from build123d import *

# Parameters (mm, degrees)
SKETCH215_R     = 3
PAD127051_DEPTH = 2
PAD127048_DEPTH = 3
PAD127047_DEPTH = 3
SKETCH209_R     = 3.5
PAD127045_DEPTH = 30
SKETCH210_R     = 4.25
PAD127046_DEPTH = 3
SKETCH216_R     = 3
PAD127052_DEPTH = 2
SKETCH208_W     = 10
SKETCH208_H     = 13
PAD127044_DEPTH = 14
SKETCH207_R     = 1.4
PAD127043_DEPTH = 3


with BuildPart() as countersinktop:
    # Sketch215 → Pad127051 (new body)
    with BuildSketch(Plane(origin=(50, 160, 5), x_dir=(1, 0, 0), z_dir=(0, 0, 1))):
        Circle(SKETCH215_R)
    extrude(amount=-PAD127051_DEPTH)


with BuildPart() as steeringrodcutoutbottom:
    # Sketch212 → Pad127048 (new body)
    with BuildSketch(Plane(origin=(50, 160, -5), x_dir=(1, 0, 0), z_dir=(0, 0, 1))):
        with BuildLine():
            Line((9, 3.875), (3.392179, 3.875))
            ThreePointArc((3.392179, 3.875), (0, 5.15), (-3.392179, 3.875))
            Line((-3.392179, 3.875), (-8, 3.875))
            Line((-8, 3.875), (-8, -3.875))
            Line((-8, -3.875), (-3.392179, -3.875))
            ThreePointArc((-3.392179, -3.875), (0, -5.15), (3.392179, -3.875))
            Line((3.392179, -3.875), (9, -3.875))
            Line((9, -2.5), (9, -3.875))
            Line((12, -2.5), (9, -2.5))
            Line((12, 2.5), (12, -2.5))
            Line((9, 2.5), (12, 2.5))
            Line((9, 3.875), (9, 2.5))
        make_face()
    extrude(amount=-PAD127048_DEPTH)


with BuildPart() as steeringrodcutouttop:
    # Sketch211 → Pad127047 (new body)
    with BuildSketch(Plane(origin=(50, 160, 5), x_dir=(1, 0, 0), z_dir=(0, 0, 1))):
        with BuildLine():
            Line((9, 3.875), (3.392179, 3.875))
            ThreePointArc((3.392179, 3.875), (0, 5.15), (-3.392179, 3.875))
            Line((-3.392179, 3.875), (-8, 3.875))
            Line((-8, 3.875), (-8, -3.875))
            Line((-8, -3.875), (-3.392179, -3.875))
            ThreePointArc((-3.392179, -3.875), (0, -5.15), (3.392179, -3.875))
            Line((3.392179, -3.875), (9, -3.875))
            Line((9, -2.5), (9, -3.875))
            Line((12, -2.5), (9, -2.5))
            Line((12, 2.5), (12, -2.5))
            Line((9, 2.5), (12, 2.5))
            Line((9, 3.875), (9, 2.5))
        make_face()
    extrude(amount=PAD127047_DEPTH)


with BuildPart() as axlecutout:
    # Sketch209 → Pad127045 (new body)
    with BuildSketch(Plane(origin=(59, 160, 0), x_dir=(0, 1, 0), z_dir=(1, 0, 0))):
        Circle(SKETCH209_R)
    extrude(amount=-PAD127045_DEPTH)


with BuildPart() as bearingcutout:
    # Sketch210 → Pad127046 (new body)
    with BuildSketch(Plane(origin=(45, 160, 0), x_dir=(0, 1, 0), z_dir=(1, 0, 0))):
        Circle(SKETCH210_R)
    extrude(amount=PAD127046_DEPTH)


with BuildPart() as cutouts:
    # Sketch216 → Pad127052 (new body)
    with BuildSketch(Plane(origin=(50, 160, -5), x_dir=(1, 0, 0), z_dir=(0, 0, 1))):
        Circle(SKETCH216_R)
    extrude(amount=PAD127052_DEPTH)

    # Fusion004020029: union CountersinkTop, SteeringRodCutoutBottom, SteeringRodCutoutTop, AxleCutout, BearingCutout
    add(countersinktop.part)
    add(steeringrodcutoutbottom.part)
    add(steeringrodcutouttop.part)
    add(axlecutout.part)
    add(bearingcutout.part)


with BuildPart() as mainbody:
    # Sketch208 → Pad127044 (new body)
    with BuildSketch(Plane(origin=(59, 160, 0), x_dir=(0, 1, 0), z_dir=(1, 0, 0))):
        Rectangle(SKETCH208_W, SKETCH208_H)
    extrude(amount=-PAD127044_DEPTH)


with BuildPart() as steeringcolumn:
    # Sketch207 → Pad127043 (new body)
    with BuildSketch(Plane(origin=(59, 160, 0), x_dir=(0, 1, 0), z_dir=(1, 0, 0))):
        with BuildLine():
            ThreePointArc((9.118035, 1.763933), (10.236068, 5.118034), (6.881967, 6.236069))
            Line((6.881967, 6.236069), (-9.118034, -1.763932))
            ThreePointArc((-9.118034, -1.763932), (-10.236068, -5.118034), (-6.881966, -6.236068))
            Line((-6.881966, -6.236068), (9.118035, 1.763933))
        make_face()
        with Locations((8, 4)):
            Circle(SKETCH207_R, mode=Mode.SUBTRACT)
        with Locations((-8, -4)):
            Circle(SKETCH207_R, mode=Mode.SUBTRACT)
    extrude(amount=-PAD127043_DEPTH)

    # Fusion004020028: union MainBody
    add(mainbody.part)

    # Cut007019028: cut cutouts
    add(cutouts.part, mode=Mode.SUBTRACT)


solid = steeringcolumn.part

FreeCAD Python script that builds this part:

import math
import FreeCAD as App
import Part
import Sketcher
Q = App.Units.Quantity


def add_polygon(sketch, points):
    """Adds a closed chain of lines whose ends are joined by coincident constraints."""
    first, n = sketch.GeometryCount, len(points)
    for a, b in zip(points, points[1:] + points[:1]):
        sketch.addGeometry(Part.LineSegment(App.Vector(*a, 0), App.Vector(*b, 0)), False)
    for i in range(n):
        sketch.addConstraint(Sketcher.Constraint("Coincident", first + i, 2, first + (i + 1) % n, 1))

doc = App.newDocument("Part")
body = doc.addObject("PartDesign::Body", "Body")

# Sketch on XY plane
sketch1 = body.newObject("Sketcher::SketchObject", "Sketch")
sketch1.AttachmentSupport = (doc.getObject("XY_Plane"), [""])
sketch1.MapMode = "FlatFace"
sketch1.AttachmentOffset = App.Placement(App.Vector(0, 0, 5), App.Rotation())
sketch1.addGeometry(Part.Circle(App.Vector(50, 160, 0), App.Vector(0, 0, 1), 3), False)
sketch1.addConstraint(Sketcher.Constraint("Diameter", 0, Q("6 mm")))
sketch1.addConstraint(Sketcher.Constraint("DistanceX", -1, 1, 0, 3, Q("50 mm")))
sketch1.addConstraint(Sketcher.Constraint("DistanceY", -1, 1, 0, 3, Q("160 mm")))
pad1 = body.newObject("PartDesign::Pad", "Pad")
pad1.Profile = sketch1
pad1.Length = 2
pad1.Reversed = True
body2 = doc.addObject("PartDesign::Body", "Body001")

# Sketch on XY plane
sketch2 = body2.newObject("Sketcher::SketchObject", "Sketch001")
sketch2.AttachmentSupport = (doc.getObject("XY_Plane001"), [""])
sketch2.MapMode = "FlatFace"
sketch2.AttachmentOffset = App.Placement(App.Vector(0, 0, -5), App.Rotation())
sketch2.addGeometry(Part.LineSegment(App.Vector(59, 163.9, 0), App.Vector(53.4, 163.9, 0)), False)
sketch2.addGeometry(Part.ArcOfCircle(Part.Circle(App.Vector(50, 160, 0), App.Vector(0, 0, 1), 5.2), math.radians(49), math.radians(131)), False)
sketch2.addGeometry(Part.LineSegment(App.Vector(46.6, 163.9, 0), App.Vector(42, 163.9, 0)), False)
sketch2.addGeometry(Part.LineSegment(App.Vector(42, 163.9, 0), App.Vector(42, 156.1, 0)), False)
sketch2.addGeometry(Part.LineSegment(App.Vector(42, 156.1, 0), App.Vector(46.6, 156.1, 0)), False)
sketch2.addGeometry(Part.ArcOfCircle(Part.Circle(App.Vector(50, 160, 0), App.Vector(0, 0, 1), 5.2), math.radians(-131), math.radians(-49)), False)
sketch2.addGeometry(Part.LineSegment(App.Vector(53.4, 156.1, 0), App.Vector(59, 156.1, 0)), False)
sketch2.addGeometry(Part.LineSegment(App.Vector(59, 156.1, 0), App.Vector(59, 157.5, 0)), False)
sketch2.addGeometry(Part.LineSegment(App.Vector(59, 157.5, 0), App.Vector(62, 157.5, 0)), False)
sketch2.addGeometry(Part.LineSegment(App.Vector(62, 157.5, 0), App.Vector(62, 162.5, 0)), False)
sketch2.addGeometry(Part.LineSegment(App.Vector(62, 162.5, 0), App.Vector(59, 162.5, 0)), False)
sketch2.addGeometry(Part.LineSegment(App.Vector(59, 162.5, 0), App.Vector(59, 163.9, 0)), False)
sketch2.addConstraint(Sketcher.Constraint("Coincident", 0, 2, 1, 1))
sketch2.addConstraint(Sketcher.Constraint("Coincident", 1, 2, 2, 1))
sketch2.addConstraint(Sketcher.Constraint("Coincident", 2, 2, 3, 1))
sketch2.addConstraint(Sketcher.Constraint("Coincident", 3, 2, 4, 1))
sketch2.addConstraint(Sketcher.Constraint("Coincident", 4, 2, 5, 1))
sketch2.addConstraint(Sketcher.Constraint("Coincident", 5, 2, 6, 1))
sketch2.addConstraint(Sketcher.Constraint("Coincident", 6, 2, 7, 1))
sketch2.addConstraint(Sketcher.Constraint("Coincident", 7, 2, 8, 1))
sketch2.addConstraint(Sketcher.Constraint("Coincident", 8, 2, 9, 1))
sketch2.addConstraint(Sketcher.Constraint("Coincident", 9, 2, 10, 1))
sketch2.addConstraint(Sketcher.Constraint("Coincident", 10, 2, 11, 1))
sketch2.addConstraint(Sketcher.Constraint("Coincident", 11, 2, 0, 1))
sketch2.addConstraint(Sketcher.Constraint("Horizontal", 0))
sketch2.addConstraint(Sketcher.Constraint("Horizontal", 2))
sketch2.addConstraint(Sketcher.Constraint("Vertical", 3))
sketch2.addConstraint(Sketcher.Constraint("Horizontal", 4))
sketch2.addConstraint(Sketcher.Constraint("Horizontal", 6))
sketch2.addConstraint(Sketcher.Constraint("Vertical", 7))
sketch2.addConstraint(Sketcher.Constraint("Horizontal", 8))
sketch2.addConstraint(Sketcher.Constraint("Vertical", 9))
sketch2.addConstraint(Sketcher.Constraint("Horizontal", 10))
sketch2.addConstraint(Sketcher.Constraint("Vertical", 11))
sketch2.addConstraint(Sketcher.Constraint("Coincident", 5, 3, 1, 3))
sketch2.addConstraint(Sketcher.Constraint("Equal", 1, 5))
sketch2.addConstraint(Sketcher.Constraint("Horizontal", 0, 2, 1, 2))
sketch2.addConstraint(Sketcher.Constraint("Horizontal", 4, 2, 5, 2))
sketch2.addConstraint(Sketcher.Constraint("Vertical", 1, 2, 4, 2))
sketch2.addConstraint(Sketcher.Constraint("Vertical", 7, 2, 10, 2))
sketch2.addConstraint(Sketcher.Constraint("Equal", 7, 11))
sketch2.addConstraint(Sketcher.Constraint("DistanceX", 8, 1, 8, 2, Q("3 mm")))
sketch2.addConstraint(Sketcher.Constraint("DistanceY", 9, 1, 9, 2, Q("5 mm")))
sketch2.addConstraint(Sketcher.Constraint("Radius", 1, Q("5.150001 mm")))
sketch2.addConstraint(Sketcher.Constraint("DistanceX", -1, 1, 1, 3, Q("50 mm")))
sketch2.addConstraint(Sketcher.Constraint("DistanceY", -1, 1, 1, 3, Q("159.999999 mm")))
sketch2.addConstraint(Sketcher.Constraint("DistanceX", -1, 1, 2, 2, Q("42 mm")))
sketch2.addConstraint(Sketcher.Constraint("DistanceX", -1, 1, 6, 2, Q("59 mm")))
sketch2.addConstraint(Sketcher.Constraint("DistanceY", 3, 2, 3, 1, Q("7.75 mm")))
pad2 = body2.newObject("PartDesign::Pad", "Pad001")
pad2.Profile = sketch2
pad2.Length = 3
pad2.Reversed = True
body3 = doc.addObject("PartDesign::Body", "Body002")

# Sketch on XY plane
sketch3 = body3.newObject("Sketcher::SketchObject", "Sketch002")
sketch3.AttachmentSupport = (doc.getObject("XY_Plane002"), [""])
sketch3.MapMode = "FlatFace"
sketch3.AttachmentOffset = App.Placement(App.Vector(0, 0, 5), App.Rotation())
sketch3.addGeometry(Part.LineSegment(App.Vector(59, 163.9, 0), App.Vector(53.4, 163.9, 0)), False)
sketch3.addGeometry(Part.ArcOfCircle(Part.Circle(App.Vector(50, 160, 0), App.Vector(0, 0, 1), 5.2), math.radians(49), math.radians(131)), False)
sketch3.addGeometry(Part.LineSegment(App.Vector(46.6, 163.9, 0), App.Vector(42, 163.9, 0)), False)
sketch3.addGeometry(Part.LineSegment(App.Vector(42, 163.9, 0), App.Vector(42, 156.1, 0)), False)
sketch3.addGeometry(Part.LineSegment(App.Vector(42, 156.1, 0), App.Vector(46.6, 156.1, 0)), False)
sketch3.addGeometry(Part.ArcOfCircle(Part.Circle(App.Vector(50, 160, 0), App.Vector(0, 0, 1), 5.2), math.radians(-131), math.radians(-49)), False)
sketch3.addGeometry(Part.LineSegment(App.Vector(53.4, 156.1, 0), App.Vector(59, 156.1, 0)), False)
sketch3.addGeometry(Part.LineSegment(App.Vector(59, 156.1, 0), App.Vector(59, 157.5, 0)), False)
sketch3.addGeometry(Part.LineSegment(App.Vector(59, 157.5, 0), App.Vector(62, 157.5, 0)), False)
sketch3.addGeometry(Part.LineSegment(App.Vector(62, 157.5, 0), App.Vector(62, 162.5, 0)), False)
sketch3.addGeometry(Part.LineSegment(App.Vector(62, 162.5, 0), App.Vector(59, 162.5, 0)), False)
sketch3.addGeometry(Part.LineSegment(App.Vector(59, 162.5, 0), App.Vector(59, 163.9, 0)), False)
sketch3.addConstraint(Sketcher.Constraint("Coincident", 0, 2, 1, 1))
sketch3.addConstraint(Sketcher.Constraint("Coincident", 1, 2, 2, 1))
sketch3.addConstraint(Sketcher.Constraint("Coincident", 2, 2, 3, 1))
sketch3.addConstraint(Sketcher.Constraint("Coincident", 3, 2, 4, 1))
sketch3.addConstraint(Sketcher.Constraint("Coincident", 4, 2, 5, 1))
sketch3.addConstraint(Sketcher.Constraint("Coincident", 5, 2, 6, 1))
sketch3.addConstraint(Sketcher.Constraint("Coincident", 6, 2, 7, 1))
sketch3.addConstraint(Sketcher.Constraint("Coincident", 7, 2, 8, 1))
sketch3.addConstraint(Sketcher.Constraint("Coincident", 8, 2, 9, 1))
sketch3.addConstraint(Sketcher.Constraint("Coincident", 9, 2, 10, 1))
sketch3.addConstraint(Sketcher.Constraint("Coincident", 10, 2, 11, 1))
sketch3.addConstraint(Sketcher.Constraint("Coincident", 11, 2, 0, 1))
sketch3.addConstraint(Sketcher.Constraint("Horizontal", 0))
sketch3.addConstraint(Sketcher.Constraint("Horizontal", 2))
sketch3.addConstraint(Sketcher.Constraint("Vertical", 3))
sketch3.addConstraint(Sketcher.Constraint("Horizontal", 4))
sketch3.addConstraint(Sketcher.Constraint("Horizontal", 6))
sketch3.addConstraint(Sketcher.Constraint("Vertical", 7))
sketch3.addConstraint(Sketcher.Constraint("Horizontal", 8))
sketch3.addConstraint(Sketcher.Constraint("Vertical", 9))
sketch3.addConstraint(Sketcher.Constraint("Horizontal", 10))
sketch3.addConstraint(Sketcher.Constraint("Vertical", 11))
sketch3.addConstraint(Sketcher.Constraint("Coincident", 5, 3, 1, 3))
sketch3.addConstraint(Sketcher.Constraint("Equal", 1, 5))
sketch3.addConstraint(Sketcher.Constraint("Horizontal", 0, 2, 1, 2))
sketch3.addConstraint(Sketcher.Constraint("Horizontal", 4, 2, 5, 2))
sketch3.addConstraint(Sketcher.Constraint("Vertical", 1, 2, 4, 2))
sketch3.addConstraint(Sketcher.Constraint("Vertical", 7, 2, 10, 2))
sketch3.addConstraint(Sketcher.Constraint("Equal", 7, 11))
sketch3.addConstraint(Sketcher.Constraint("DistanceX", 8, 1, 8, 2, Q("3 mm")))
sketch3.addConstraint(Sketcher.Constraint("DistanceY", 9, 1, 9, 2, Q("5 mm")))
sketch3.addConstraint(Sketcher.Constraint("Radius", 1, Q("5.150001 mm")))
sketch3.addConstraint(Sketcher.Constraint("DistanceX", -1, 1, 1, 3, Q("50 mm")))
sketch3.addConstraint(Sketcher.Constraint("DistanceY", -1, 1, 1, 3, Q("159.999999 mm")))
sketch3.addConstraint(Sketcher.Constraint("DistanceX", -1, 1, 2, 2, Q("42 mm")))
sketch3.addConstraint(Sketcher.Constraint("DistanceX", -1, 1, 6, 2, Q("59 mm")))
sketch3.addConstraint(Sketcher.Constraint("DistanceY", 3, 2, 3, 1, Q("7.75 mm")))
pad3 = body3.newObject("PartDesign::Pad", "Pad002")
pad3.Profile = sketch3
pad3.Length = 3
body4 = doc.addObject("PartDesign::Body", "Body003")

# Sketch on YZ plane
sketch4 = body4.newObject("Sketcher::SketchObject", "Sketch003")
sketch4.AttachmentSupport = (doc.getObject("YZ_Plane003"), [""])
sketch4.MapMode = "FlatFace"
sketch4.AttachmentOffset = App.Placement(App.Vector(0, 0, 59), App.Rotation())
sketch4.addGeometry(Part.Circle(App.Vector(160, 0, 0), App.Vector(0, 0, 1), 3.5), False)
sketch4.addConstraint(Sketcher.Constraint("PointOnObject", 0, 3, -1))
sketch4.addConstraint(Sketcher.Constraint("Diameter", 0, Q("7 mm")))
sketch4.addConstraint(Sketcher.Constraint("DistanceX", -1, 1, 0, 3, Q("160 mm")))
pad4 = body4.newObject("PartDesign::Pad", "Pad003")
pad4.Profile = sketch4
pad4.Length = 30
pad4.Reversed = True
body5 = doc.addObject("PartDesign::Body", "Body004")

# Sketch on YZ plane
sketch5 = body5.newObject("Sketcher::SketchObject", "Sketch004")
sketch5.AttachmentSupport = (doc.getObject("YZ_Plane004"), [""])
sketch5.MapMode = "FlatFace"
sketch5.AttachmentOffset = App.Placement(App.Vector(0, 0, 45), App.Rotation())
sketch5.addGeometry(Part.Circle(App.Vector(160, 0, 0), App.Vector(0, 0, 1), 4.2), False)
sketch5.addConstraint(Sketcher.Constraint("PointOnObject", 0, 3, -1))
sketch5.addConstraint(Sketcher.Constraint("Diameter", 0, Q("8.5 mm")))
sketch5.addConstraint(Sketcher.Constraint("DistanceX", -1, 1, 0, 3, Q("160 mm")))
pad5 = body5.newObject("PartDesign::Pad", "Pad004")
pad5.Profile = sketch5
pad5.Length = 3
body6 = doc.addObject("PartDesign::Body", "Body005")
body6.AllowCompound = True

# Sketch on XY plane
sketch6 = body6.newObject("Sketcher::SketchObject", "Sketch005")
sketch6.AttachmentSupport = (doc.getObject("XY_Plane005"), [""])
sketch6.MapMode = "FlatFace"
sketch6.AttachmentOffset = App.Placement(App.Vector(0, 0, -5), App.Rotation())
sketch6.addGeometry(Part.Circle(App.Vector(50, 160, 0), App.Vector(0, 0, 1), 3), False)
sketch6.addConstraint(Sketcher.Constraint("Diameter", 0, Q("6 mm")))
sketch6.addConstraint(Sketcher.Constraint("DistanceX", -1, 1, 0, 3, Q("50 mm")))
sketch6.addConstraint(Sketcher.Constraint("DistanceY", -1, 1, 0, 3, Q("160 mm")))
pad6 = body6.newObject("PartDesign::Pad", "Pad005")
pad6.Profile = sketch6
pad6.Length = 2
doc.recompute()

boolean = body6.newObject("PartDesign::Boolean", "Boolean")
boolean.Type = "Fuse"
boolean.addObjects([body])
doc.recompute()

boolean2 = body6.newObject("PartDesign::Boolean", "Boolean001")
boolean2.Type = "Fuse"
boolean2.addObjects([body2])
doc.recompute()

boolean3 = body6.newObject("PartDesign::Boolean", "Boolean002")
boolean3.Type = "Fuse"
boolean3.addObjects([body3])
doc.recompute()

boolean4 = body6.newObject("PartDesign::Boolean", "Boolean003")
boolean4.Type = "Fuse"
boolean4.addObjects([body4])
doc.recompute()

boolean5 = body6.newObject("PartDesign::Boolean", "Boolean004")
boolean5.Type = "Fuse"
boolean5.addObjects([body5])
body7 = doc.addObject("PartDesign::Body", "Body006")

# Sketch on YZ plane
sketch7 = body7.newObject("Sketcher::SketchObject", "Sketch006")
sketch7.AttachmentSupport = (doc.getObject("YZ_Plane006"), [""])
sketch7.MapMode = "FlatFace"
sketch7.AttachmentOffset = App.Placement(App.Vector(0, 0, 59), App.Rotation())
add_polygon(sketch7, [(155, 6), (155, -6), (165, -6), (165, 6)])  # lines 0-3
sketch7.addConstraint(Sketcher.Constraint("Vertical", 0))
sketch7.addConstraint(Sketcher.Constraint("Horizontal", 1))
sketch7.addConstraint(Sketcher.Constraint("Vertical", 2))
sketch7.addConstraint(Sketcher.Constraint("Horizontal", 3))
sketch7.addConstraint(Sketcher.Constraint("DistanceX", 1, 1, 1, 2, Q("10 mm")))
sketch7.addConstraint(Sketcher.Constraint("DistanceY", 0, 2, 0, 1, Q("13 mm")))
sketch7.addConstraint(Sketcher.Constraint("DistanceX", -1, 1, 0, 2, Q("155 mm")))
sketch7.addConstraint(Sketcher.Constraint("DistanceY", 0, 2, -1, 1, Q("6.5 mm")))
pad7 = body7.newObject("PartDesign::Pad", "Pad006")
pad7.Profile = sketch7
pad7.Length = 14
pad7.Reversed = True
body8 = doc.addObject("PartDesign::Body", "Body007")

# Sketch on YZ plane
sketch8 = body8.newObject("Sketcher::SketchObject", "Sketch007")
sketch8.AttachmentSupport = (doc.getObject("YZ_Plane007"), [""])
sketch8.MapMode = "FlatFace"
sketch8.AttachmentOffset = App.Placement(App.Vector(0, 0, 59), App.Rotation())
sketch8.addGeometry(Part.ArcOfCircle(Part.Circle(App.Vector(168, 4, 0), App.Vector(0, 0, 1), 2.5), math.radians(-63), math.radians(117)), False)
sketch8.addGeometry(Part.LineSegment(App.Vector(166.9, 6.2, 0), App.Vector(150.9, -1.8, 0)), False)
sketch8.addGeometry(Part.ArcOfCircle(Part.Circle(App.Vector(152, -4, 0), App.Vector(0, 0, 1), 2.5), math.radians(117), math.radians(297)), False)
sketch8.addGeometry(Part.LineSegment(App.Vector(153.1, -6.2, 0), App.Vector(169.1, 1.8, 0)), False)
sketch8.addGeometry(Part.Circle(App.Vector(152, -4, 0), App.Vector(0, 0, 1), 1.4), False)
sketch8.addGeometry(Part.Circle(App.Vector(168, 4, 0), App.Vector(0, 0, 1), 1.4), False)
sketch8.addConstraint(Sketcher.Constraint("Tangent", 0, 2, 1, 1))
sketch8.addConstraint(Sketcher.Constraint("Tangent", 1, 2, 2, 1))
sketch8.addConstraint(Sketcher.Constraint("Tangent", 2, 2, 3, 1))
sketch8.addConstraint(Sketcher.Constraint("Tangent", 3, 2, 0, 1))
sketch8.addConstraint(Sketcher.Constraint("Coincident", 4, 3, 2, 3))
sketch8.addConstraint(Sketcher.Constraint("Coincident", 5, 3, 0, 3))
sketch8.addConstraint(Sketcher.Constraint("Equal", 0, 2))
sketch8.addConstraint(Sketcher.Constraint("Equal", 4, 5))
sketch8.addConstraint(Sketcher.Constraint("Diameter", 4, Q("2.8 mm")))
sketch8.addConstraint(Sketcher.Constraint("Radius", 0, Q("2.5 mm")))
sketch8.addConstraint(Sketcher.Constraint("DistanceX", -1, 1, 0, 3, Q("168 mm")))
sketch8.addConstraint(Sketcher.Constraint("DistanceY", -1, 1, 0, 3, Q("4 mm")))
sketch8.addConstraint(Sketcher.Constraint("DistanceX", -1, 1, 2, 3, Q("152 mm")))
sketch8.addConstraint(Sketcher.Constraint("DistanceY", 2, 3, -1, 1, Q("4 mm")))
pad8 = body8.newObject("PartDesign::Pad", "Pad007")
pad8.Profile = sketch8
pad8.Length = 3
pad8.Reversed = True
doc.recompute()

boolean6 = body8.newObject("PartDesign::Boolean", "Boolean005")
boolean6.Type = "Fuse"
boolean6.addObjects([body7])
doc.recompute()

boolean7 = body8.newObject("PartDesign::Boolean", "Boolean006")
boolean7.Type = "Cut"
boolean7.addObjects([body6])

doc.recompute()
